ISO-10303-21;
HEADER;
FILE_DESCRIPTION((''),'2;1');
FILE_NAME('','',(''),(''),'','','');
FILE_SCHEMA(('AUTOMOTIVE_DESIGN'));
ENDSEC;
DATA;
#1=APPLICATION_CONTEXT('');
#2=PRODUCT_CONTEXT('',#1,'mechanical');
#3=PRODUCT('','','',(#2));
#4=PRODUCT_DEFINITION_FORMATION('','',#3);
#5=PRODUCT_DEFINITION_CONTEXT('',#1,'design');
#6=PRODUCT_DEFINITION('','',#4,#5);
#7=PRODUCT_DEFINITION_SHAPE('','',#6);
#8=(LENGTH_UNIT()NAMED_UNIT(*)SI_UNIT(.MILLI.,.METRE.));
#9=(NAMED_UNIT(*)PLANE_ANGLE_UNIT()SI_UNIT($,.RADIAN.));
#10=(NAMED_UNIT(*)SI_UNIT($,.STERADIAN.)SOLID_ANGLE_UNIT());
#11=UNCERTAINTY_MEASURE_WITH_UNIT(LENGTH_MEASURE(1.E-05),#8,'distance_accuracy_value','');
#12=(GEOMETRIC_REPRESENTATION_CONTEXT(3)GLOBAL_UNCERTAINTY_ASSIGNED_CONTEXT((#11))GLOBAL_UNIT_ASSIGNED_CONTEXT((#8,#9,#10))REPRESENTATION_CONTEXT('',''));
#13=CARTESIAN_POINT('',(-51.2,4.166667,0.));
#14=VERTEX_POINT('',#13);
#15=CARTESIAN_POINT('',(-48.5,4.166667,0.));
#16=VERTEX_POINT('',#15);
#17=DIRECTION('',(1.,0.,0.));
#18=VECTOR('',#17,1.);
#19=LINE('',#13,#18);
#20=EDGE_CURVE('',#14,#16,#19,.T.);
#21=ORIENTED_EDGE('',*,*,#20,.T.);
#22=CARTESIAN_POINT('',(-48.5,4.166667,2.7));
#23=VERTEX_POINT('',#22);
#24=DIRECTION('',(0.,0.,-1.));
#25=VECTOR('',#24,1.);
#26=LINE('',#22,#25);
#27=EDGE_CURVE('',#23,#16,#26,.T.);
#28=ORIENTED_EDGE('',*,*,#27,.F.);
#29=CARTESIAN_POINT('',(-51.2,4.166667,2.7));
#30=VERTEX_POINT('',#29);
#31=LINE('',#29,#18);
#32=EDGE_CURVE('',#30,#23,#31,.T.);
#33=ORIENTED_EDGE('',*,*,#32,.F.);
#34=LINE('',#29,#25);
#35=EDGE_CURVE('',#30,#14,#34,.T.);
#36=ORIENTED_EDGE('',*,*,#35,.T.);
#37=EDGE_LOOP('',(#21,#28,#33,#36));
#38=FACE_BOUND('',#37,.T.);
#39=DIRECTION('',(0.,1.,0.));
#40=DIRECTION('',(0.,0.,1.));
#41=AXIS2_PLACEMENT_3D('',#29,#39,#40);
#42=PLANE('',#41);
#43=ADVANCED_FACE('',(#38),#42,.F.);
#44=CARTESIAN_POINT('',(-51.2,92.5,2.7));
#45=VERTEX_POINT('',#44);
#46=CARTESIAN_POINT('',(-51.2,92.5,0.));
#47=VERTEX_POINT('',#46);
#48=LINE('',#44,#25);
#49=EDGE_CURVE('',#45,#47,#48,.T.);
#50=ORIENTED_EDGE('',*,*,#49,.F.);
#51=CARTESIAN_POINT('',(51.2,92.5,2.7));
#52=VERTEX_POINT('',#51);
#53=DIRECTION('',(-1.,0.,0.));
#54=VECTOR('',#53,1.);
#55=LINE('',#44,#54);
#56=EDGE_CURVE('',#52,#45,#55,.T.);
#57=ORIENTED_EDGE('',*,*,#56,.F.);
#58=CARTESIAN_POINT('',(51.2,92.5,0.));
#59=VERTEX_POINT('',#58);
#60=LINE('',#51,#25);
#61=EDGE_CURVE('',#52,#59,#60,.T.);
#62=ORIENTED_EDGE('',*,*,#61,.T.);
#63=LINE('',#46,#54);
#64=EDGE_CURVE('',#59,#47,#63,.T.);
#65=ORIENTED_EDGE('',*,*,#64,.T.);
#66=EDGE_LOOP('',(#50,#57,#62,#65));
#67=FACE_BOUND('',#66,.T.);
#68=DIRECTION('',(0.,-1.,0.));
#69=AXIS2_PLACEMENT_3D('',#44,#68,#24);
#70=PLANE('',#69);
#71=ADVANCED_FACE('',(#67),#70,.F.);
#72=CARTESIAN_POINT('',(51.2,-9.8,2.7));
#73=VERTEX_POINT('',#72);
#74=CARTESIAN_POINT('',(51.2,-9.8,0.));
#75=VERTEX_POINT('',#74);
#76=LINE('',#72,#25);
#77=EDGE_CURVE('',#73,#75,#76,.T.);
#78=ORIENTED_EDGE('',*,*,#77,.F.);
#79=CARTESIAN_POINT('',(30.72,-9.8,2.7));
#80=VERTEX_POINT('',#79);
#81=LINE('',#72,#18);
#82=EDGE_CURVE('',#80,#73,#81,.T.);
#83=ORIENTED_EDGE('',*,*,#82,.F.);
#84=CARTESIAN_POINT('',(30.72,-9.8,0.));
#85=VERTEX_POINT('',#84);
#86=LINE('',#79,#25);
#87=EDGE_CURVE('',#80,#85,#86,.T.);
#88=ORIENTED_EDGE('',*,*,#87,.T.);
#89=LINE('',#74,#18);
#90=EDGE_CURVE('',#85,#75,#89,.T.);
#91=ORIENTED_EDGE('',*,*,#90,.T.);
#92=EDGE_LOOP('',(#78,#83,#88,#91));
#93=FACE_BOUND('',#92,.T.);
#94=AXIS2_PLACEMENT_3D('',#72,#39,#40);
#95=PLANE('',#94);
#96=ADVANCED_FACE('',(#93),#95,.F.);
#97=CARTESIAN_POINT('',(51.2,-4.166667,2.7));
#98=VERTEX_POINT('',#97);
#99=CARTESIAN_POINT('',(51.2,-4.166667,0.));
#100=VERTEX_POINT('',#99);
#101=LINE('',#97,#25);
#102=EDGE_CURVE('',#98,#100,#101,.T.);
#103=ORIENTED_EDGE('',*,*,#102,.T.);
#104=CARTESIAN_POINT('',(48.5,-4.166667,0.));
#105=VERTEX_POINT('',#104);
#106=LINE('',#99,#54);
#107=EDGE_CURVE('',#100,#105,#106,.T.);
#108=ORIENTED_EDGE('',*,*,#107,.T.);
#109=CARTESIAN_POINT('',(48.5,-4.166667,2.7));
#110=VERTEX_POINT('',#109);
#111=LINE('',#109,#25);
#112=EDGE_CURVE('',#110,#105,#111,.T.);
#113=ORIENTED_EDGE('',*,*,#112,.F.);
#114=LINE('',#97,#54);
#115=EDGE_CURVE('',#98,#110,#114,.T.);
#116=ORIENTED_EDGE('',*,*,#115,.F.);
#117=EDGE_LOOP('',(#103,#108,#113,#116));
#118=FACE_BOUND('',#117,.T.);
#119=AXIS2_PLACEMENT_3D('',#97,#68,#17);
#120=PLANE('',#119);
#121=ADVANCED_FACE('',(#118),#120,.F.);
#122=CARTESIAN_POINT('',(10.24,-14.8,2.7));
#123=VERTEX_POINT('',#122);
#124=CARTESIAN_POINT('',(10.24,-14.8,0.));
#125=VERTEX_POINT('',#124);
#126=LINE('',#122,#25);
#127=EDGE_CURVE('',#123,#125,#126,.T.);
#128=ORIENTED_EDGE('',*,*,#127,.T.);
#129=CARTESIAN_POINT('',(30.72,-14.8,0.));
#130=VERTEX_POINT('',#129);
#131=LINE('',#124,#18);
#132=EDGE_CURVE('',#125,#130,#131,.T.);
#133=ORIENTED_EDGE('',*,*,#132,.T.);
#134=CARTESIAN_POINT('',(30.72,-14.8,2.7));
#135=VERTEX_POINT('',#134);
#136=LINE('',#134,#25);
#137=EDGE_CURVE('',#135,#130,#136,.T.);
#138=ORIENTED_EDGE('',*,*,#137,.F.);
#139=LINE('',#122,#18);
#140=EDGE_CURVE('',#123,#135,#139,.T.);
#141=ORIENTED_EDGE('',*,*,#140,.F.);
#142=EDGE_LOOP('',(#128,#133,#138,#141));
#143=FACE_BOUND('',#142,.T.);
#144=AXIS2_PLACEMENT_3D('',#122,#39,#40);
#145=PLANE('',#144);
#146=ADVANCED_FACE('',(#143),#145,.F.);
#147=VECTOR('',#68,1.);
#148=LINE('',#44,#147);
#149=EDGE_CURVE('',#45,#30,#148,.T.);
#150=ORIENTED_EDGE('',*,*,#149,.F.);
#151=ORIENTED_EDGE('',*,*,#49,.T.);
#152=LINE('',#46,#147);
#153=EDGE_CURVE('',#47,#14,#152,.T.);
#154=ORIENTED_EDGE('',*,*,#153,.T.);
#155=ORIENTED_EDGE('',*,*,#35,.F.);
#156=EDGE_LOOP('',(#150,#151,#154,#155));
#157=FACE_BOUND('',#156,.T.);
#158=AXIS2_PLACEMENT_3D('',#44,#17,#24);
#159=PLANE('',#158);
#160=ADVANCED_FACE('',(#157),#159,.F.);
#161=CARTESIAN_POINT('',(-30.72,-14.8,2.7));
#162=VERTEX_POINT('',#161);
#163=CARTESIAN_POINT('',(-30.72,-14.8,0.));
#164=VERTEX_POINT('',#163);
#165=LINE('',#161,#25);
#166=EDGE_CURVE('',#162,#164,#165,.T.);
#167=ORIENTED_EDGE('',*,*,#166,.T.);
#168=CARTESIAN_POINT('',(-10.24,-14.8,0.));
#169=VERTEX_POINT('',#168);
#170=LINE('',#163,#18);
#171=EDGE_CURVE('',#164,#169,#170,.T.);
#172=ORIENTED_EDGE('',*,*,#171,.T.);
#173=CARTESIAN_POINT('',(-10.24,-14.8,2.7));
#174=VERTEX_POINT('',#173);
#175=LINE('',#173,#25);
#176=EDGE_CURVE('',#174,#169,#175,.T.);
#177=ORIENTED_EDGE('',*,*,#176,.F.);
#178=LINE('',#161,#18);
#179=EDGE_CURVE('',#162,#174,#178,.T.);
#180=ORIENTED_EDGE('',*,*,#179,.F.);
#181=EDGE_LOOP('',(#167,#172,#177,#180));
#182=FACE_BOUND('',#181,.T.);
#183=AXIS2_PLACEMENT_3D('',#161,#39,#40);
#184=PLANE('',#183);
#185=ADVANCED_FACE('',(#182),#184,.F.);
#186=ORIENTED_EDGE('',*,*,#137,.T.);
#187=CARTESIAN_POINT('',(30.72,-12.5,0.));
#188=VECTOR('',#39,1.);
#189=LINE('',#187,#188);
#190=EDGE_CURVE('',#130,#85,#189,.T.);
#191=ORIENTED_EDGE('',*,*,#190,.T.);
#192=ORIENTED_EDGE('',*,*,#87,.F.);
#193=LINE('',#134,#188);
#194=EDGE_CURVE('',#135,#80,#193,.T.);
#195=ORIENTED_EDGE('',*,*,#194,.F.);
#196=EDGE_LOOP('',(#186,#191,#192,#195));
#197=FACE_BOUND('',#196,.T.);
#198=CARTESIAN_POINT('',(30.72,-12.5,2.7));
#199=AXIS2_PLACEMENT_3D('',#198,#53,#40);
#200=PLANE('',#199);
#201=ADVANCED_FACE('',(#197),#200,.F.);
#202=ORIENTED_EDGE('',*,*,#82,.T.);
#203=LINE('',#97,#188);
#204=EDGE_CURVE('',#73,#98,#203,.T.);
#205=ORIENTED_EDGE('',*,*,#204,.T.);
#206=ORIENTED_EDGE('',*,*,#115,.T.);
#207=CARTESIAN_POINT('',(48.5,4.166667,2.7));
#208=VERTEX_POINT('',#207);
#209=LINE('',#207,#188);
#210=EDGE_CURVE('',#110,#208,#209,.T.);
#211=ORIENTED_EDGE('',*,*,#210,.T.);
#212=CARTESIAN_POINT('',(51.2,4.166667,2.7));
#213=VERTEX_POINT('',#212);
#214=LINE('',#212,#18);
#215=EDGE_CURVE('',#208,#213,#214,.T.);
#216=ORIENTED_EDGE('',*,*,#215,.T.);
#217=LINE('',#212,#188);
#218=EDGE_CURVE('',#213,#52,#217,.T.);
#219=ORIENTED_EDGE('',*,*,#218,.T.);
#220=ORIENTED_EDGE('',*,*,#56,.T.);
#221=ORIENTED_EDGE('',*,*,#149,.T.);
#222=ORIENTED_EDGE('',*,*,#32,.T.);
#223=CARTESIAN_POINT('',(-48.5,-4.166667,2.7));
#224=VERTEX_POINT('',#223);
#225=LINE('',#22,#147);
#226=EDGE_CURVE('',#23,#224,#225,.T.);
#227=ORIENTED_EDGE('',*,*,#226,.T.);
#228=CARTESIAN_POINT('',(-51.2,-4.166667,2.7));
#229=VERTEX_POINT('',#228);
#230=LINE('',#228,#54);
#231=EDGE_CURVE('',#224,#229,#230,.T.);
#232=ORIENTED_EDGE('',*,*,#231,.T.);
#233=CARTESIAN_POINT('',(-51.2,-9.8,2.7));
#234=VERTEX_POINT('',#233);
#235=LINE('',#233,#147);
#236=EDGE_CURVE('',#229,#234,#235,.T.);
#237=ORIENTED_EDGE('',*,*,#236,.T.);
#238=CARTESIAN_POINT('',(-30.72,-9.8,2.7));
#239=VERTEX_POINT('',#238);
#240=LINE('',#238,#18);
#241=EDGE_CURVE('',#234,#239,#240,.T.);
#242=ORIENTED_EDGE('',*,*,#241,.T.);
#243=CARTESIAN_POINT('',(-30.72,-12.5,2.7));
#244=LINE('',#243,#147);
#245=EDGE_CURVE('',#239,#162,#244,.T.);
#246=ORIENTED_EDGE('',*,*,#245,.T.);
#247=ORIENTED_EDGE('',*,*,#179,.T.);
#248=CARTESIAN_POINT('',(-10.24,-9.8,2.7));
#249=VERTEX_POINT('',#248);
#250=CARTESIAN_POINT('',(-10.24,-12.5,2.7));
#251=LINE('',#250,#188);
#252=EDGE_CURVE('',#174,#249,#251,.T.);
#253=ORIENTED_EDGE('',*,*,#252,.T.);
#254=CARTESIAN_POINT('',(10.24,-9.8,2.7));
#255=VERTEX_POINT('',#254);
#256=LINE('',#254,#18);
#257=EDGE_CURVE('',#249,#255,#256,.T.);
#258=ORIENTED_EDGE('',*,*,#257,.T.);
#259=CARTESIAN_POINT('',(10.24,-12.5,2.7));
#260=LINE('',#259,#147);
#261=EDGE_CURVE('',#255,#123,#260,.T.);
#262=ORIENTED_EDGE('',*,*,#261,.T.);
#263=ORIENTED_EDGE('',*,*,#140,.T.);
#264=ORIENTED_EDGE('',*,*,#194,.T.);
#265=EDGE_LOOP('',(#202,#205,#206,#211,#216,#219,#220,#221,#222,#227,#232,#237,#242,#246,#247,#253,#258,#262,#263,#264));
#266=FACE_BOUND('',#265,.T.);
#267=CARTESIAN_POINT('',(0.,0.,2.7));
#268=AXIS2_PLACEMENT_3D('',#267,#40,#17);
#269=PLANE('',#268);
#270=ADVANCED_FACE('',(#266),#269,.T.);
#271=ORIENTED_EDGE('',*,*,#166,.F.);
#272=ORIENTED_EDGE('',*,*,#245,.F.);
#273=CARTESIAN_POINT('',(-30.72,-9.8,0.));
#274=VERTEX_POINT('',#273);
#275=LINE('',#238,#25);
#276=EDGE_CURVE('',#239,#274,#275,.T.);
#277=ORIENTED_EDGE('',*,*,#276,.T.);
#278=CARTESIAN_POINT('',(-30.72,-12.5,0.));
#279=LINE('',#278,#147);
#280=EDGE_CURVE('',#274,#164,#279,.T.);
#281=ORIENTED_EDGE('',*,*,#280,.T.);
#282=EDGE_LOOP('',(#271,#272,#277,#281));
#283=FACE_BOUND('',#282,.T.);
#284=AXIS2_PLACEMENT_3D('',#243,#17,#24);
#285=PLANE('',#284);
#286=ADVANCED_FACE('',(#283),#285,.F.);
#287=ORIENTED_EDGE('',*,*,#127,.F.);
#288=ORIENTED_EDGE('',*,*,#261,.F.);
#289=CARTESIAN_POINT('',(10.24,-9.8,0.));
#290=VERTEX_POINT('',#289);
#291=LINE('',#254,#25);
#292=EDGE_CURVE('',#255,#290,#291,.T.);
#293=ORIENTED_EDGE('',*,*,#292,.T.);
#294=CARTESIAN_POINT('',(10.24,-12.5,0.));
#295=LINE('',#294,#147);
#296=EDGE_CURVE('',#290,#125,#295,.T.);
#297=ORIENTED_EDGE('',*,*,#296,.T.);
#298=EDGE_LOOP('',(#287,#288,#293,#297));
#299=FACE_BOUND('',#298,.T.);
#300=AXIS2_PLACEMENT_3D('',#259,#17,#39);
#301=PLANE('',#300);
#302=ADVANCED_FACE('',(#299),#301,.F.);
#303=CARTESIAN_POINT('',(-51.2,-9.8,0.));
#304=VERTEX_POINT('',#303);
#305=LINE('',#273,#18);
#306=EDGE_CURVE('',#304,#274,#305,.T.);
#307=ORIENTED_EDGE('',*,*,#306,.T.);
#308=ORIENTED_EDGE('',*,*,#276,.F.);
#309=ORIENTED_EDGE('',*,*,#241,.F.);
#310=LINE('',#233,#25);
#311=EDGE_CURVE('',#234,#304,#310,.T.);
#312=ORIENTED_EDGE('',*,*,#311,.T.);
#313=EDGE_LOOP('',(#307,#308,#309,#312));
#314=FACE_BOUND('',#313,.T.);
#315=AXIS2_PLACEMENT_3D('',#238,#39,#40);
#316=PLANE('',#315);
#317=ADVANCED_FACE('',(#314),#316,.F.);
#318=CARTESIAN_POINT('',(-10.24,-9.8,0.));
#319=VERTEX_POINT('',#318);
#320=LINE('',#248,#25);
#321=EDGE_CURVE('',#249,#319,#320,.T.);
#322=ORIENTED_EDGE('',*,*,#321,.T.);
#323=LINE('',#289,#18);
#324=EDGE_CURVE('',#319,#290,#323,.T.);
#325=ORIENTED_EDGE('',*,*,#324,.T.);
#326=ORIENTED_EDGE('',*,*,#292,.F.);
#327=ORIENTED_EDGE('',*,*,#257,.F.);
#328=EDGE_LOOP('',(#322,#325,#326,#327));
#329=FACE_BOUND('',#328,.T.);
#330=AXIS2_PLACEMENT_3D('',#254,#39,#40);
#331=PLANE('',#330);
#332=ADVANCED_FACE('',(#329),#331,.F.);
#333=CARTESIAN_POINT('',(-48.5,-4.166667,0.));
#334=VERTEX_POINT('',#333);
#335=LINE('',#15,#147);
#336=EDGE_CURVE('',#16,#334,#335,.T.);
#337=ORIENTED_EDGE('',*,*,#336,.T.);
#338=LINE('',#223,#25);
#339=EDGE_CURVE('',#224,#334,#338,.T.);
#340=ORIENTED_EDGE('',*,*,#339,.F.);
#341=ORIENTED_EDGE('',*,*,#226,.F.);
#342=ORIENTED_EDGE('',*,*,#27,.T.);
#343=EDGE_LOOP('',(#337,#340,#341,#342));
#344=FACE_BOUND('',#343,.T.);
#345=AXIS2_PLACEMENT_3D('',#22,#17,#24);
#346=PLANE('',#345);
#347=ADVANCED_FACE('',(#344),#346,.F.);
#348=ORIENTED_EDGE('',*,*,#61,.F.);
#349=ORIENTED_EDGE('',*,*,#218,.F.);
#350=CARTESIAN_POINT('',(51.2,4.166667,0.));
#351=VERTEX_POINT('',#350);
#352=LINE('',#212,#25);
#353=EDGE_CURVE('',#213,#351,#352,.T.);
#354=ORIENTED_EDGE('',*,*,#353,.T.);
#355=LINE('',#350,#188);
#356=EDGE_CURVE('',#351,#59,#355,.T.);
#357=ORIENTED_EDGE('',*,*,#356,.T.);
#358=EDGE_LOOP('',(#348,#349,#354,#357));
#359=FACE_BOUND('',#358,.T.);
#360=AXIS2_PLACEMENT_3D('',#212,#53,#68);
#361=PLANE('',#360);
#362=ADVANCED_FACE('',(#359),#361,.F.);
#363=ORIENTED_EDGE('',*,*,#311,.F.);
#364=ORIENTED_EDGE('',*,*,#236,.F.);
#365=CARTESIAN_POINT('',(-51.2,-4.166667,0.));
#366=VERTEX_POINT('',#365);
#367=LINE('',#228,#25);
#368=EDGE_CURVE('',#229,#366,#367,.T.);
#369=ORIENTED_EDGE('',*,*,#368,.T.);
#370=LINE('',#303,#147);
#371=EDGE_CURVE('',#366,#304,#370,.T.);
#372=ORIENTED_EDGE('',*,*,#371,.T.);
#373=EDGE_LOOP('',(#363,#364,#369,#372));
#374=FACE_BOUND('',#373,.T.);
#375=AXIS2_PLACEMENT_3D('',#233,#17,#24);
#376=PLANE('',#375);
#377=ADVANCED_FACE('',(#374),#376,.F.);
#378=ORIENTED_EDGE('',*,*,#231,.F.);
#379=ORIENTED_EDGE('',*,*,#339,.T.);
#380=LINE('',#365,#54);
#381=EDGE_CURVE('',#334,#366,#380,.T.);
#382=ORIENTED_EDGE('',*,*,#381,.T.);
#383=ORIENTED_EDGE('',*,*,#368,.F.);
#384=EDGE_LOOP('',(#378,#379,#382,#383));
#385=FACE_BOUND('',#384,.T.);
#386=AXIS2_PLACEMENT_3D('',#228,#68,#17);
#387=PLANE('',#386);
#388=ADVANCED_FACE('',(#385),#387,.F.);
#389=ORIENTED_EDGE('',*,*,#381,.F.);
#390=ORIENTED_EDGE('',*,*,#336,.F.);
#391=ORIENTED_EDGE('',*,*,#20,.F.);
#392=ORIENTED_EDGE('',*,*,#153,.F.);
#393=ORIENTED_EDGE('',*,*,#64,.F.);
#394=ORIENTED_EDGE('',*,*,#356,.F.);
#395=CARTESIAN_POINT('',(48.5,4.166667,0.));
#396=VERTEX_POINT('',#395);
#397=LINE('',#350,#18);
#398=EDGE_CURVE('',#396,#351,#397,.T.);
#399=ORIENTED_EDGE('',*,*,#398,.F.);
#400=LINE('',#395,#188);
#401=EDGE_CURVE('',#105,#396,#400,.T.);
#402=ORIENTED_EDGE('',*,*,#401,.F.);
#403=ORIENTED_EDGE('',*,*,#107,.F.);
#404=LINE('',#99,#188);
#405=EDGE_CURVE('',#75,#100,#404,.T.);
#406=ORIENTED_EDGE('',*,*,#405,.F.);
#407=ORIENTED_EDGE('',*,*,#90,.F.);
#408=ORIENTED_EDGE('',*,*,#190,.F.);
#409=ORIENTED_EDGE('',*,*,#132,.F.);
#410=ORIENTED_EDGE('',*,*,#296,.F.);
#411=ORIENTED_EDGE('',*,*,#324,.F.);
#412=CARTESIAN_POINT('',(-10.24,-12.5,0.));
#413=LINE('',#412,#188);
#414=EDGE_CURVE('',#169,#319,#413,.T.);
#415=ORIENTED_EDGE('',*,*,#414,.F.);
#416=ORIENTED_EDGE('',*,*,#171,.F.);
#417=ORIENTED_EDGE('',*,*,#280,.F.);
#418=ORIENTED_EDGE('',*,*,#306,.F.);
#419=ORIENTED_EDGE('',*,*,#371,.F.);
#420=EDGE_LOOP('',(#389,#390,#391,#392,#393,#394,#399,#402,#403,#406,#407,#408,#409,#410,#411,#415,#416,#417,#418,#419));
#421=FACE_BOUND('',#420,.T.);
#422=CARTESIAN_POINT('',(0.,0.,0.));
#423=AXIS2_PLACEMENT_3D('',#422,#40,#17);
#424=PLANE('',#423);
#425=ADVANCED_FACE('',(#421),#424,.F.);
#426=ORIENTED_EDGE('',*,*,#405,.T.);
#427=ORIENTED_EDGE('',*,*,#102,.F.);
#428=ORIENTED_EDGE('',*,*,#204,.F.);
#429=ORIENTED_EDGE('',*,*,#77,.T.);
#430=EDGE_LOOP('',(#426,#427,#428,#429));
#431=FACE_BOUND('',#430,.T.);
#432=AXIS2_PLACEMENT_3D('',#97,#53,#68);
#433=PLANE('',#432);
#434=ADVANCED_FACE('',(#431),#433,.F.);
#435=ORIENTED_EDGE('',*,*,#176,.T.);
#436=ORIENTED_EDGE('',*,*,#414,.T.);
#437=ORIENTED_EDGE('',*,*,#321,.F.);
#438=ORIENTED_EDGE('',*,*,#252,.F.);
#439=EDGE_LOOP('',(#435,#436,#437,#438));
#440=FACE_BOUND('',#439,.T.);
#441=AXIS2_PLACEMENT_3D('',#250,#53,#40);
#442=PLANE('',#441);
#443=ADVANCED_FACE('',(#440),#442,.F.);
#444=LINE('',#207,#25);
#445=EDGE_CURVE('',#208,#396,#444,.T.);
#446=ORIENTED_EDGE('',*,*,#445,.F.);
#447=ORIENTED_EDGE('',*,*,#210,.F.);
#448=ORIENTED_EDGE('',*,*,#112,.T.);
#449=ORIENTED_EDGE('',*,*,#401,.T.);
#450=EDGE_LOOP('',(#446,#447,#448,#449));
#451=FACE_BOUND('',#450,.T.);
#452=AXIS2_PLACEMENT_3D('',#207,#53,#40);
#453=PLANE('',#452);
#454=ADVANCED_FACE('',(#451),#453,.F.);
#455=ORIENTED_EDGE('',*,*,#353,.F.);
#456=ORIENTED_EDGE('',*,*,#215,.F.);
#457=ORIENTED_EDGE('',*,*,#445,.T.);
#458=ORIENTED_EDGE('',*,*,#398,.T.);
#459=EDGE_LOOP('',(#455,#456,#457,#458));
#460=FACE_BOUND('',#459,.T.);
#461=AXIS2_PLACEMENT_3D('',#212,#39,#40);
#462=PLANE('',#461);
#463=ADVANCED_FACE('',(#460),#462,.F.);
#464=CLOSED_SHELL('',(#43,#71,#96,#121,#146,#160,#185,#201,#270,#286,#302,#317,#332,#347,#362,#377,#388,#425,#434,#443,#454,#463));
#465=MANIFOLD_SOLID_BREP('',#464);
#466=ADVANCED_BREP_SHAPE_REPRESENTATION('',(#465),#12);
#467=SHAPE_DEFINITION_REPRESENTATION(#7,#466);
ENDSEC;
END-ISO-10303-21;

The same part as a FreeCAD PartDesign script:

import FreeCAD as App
import Part
import Sketcher
from FreeCAD import Vector
Q = App.Units.Quantity


def add_polygon(sketch, points):
    """Adds a closed chain of lines whose ends are joined by coincident constraints."""
    first, n = sketch.GeometryCount, len(points)
    for a, b in zip(points, points[1:] + points[:1]):
        sketch.addGeometry(Part.LineSegment(App.Vector(*a, 0), App.Vector(*b, 0)), False)
    for i in range(n):
        sketch.addConstraint(Sketcher.Constraint("Coincident", first + i, 2, first + (i + 1) % n, 1))

doc = App.newDocument("Part")
body = doc.addObject("PartDesign::Body", "Body")

sketch1 = body.newObject("Sketcher::SketchObject", "Sketch")
sketch1.AttachmentSupport = (doc.getObject("XY_Plane"), [""])
sketch1.MapMode = "FlatFace"
add_polygon(sketch1, [(-51.2, -4.2), (-51.2, -9.8), (-30.7, -9.8), (-30.7, -14.8), (-10.2, -14.8), (-10.2, -9.8), (10.2, -9.8), (10.2, -14.8), (30.7, -14.8), (30.7, -9.8), (51.2, -9.8), (51.2, -4.2), (48.5, -4.2), (48.5, 4.2), (51.2, 4.2), (51.2, 92.5), (-51.2, 92.5), (-51.2, 4.2), (-48.5, 4.2), (-48.5, -4.2)])
sketch1.addConstraint([
    Sketcher.Constraint("Vertical", 0),
    Sketcher.Constraint("Horizontal", 1),
    Sketcher.Constraint("Vertical", 2),
    Sketcher.Constraint("Horizontal", 3),
    Sketcher.Constraint("Vertical", 4),
    Sketcher.Constraint("Horizontal", 5),
    Sketcher.Constraint("Vertical", 6),
    Sketcher.Constraint("Horizontal", 7),
    Sketcher.Constraint("Vertical", 8),
    Sketcher.Constraint("Horizontal", 9),
    Sketcher.Constraint("Vertical", 10),
    Sketcher.Constraint("Horizontal", 11),
    Sketcher.Constraint("Vertical", 12),
    Sketcher.Constraint("Horizontal", 13),
    Sketcher.Constraint("Vertical", 14),
    Sketcher.Constraint("Horizontal", 15),
    Sketcher.Constraint("Vertical", 16),
    Sketcher.Constraint("Horizontal", 17),
    Sketcher.Constraint("Vertical", 18),
    Sketcher.Constraint("Horizontal", 19),
    Sketcher.Constraint("Symmetric", 10, 2, 16, 2, -1, 1),
    Sketcher.Constraint("Symmetric", 12, 2, 18, 2, -1, 1),
    Sketcher.Constraint("Symmetric", 3, 2, 6, 2, -2),
    Sketcher.Constraint("Symmetric", 1, 2, 8, 2, -2),
    Sketcher.Constraint("Symmetric", 13, 2, 16, 2, -2),
    Sketcher.Constraint("Horizontal", 1, 2, 4, 2),
    Sketcher.Constraint("Vertical", 0, 2, 15, 2),
    Sketcher.Constraint("Equal", 1, 3),
    Sketcher.Constraint("Equal", 3, 5),
    Sketcher.Constraint("DistanceY", 2, 2, 2, 1, Q("5 mm")),
    Sketcher.Constraint("DistanceX", 11, 2, 11, 1, Q("2.7 mm")),
    Sketcher.Constraint("DistanceX", 15, 2, 15, 1, Q("102.4 mm")),
    Sketcher.Constraint("DistanceY", 0, 2, -1, 1, Q("9.8 mm")),
    Sketcher.Constraint("DistanceY", -1, 1, 14, 2, Q("92.5 mm")),
    Sketcher.Constraint("DistanceY", 0, 2, 0, 1, Q("5.633333 mm")),
])
pad1 = body.newObject("PartDesign::Pad", "Pad")
pad1.Profile = sketch1
pad1.Length = 2.7

doc.recompute()
